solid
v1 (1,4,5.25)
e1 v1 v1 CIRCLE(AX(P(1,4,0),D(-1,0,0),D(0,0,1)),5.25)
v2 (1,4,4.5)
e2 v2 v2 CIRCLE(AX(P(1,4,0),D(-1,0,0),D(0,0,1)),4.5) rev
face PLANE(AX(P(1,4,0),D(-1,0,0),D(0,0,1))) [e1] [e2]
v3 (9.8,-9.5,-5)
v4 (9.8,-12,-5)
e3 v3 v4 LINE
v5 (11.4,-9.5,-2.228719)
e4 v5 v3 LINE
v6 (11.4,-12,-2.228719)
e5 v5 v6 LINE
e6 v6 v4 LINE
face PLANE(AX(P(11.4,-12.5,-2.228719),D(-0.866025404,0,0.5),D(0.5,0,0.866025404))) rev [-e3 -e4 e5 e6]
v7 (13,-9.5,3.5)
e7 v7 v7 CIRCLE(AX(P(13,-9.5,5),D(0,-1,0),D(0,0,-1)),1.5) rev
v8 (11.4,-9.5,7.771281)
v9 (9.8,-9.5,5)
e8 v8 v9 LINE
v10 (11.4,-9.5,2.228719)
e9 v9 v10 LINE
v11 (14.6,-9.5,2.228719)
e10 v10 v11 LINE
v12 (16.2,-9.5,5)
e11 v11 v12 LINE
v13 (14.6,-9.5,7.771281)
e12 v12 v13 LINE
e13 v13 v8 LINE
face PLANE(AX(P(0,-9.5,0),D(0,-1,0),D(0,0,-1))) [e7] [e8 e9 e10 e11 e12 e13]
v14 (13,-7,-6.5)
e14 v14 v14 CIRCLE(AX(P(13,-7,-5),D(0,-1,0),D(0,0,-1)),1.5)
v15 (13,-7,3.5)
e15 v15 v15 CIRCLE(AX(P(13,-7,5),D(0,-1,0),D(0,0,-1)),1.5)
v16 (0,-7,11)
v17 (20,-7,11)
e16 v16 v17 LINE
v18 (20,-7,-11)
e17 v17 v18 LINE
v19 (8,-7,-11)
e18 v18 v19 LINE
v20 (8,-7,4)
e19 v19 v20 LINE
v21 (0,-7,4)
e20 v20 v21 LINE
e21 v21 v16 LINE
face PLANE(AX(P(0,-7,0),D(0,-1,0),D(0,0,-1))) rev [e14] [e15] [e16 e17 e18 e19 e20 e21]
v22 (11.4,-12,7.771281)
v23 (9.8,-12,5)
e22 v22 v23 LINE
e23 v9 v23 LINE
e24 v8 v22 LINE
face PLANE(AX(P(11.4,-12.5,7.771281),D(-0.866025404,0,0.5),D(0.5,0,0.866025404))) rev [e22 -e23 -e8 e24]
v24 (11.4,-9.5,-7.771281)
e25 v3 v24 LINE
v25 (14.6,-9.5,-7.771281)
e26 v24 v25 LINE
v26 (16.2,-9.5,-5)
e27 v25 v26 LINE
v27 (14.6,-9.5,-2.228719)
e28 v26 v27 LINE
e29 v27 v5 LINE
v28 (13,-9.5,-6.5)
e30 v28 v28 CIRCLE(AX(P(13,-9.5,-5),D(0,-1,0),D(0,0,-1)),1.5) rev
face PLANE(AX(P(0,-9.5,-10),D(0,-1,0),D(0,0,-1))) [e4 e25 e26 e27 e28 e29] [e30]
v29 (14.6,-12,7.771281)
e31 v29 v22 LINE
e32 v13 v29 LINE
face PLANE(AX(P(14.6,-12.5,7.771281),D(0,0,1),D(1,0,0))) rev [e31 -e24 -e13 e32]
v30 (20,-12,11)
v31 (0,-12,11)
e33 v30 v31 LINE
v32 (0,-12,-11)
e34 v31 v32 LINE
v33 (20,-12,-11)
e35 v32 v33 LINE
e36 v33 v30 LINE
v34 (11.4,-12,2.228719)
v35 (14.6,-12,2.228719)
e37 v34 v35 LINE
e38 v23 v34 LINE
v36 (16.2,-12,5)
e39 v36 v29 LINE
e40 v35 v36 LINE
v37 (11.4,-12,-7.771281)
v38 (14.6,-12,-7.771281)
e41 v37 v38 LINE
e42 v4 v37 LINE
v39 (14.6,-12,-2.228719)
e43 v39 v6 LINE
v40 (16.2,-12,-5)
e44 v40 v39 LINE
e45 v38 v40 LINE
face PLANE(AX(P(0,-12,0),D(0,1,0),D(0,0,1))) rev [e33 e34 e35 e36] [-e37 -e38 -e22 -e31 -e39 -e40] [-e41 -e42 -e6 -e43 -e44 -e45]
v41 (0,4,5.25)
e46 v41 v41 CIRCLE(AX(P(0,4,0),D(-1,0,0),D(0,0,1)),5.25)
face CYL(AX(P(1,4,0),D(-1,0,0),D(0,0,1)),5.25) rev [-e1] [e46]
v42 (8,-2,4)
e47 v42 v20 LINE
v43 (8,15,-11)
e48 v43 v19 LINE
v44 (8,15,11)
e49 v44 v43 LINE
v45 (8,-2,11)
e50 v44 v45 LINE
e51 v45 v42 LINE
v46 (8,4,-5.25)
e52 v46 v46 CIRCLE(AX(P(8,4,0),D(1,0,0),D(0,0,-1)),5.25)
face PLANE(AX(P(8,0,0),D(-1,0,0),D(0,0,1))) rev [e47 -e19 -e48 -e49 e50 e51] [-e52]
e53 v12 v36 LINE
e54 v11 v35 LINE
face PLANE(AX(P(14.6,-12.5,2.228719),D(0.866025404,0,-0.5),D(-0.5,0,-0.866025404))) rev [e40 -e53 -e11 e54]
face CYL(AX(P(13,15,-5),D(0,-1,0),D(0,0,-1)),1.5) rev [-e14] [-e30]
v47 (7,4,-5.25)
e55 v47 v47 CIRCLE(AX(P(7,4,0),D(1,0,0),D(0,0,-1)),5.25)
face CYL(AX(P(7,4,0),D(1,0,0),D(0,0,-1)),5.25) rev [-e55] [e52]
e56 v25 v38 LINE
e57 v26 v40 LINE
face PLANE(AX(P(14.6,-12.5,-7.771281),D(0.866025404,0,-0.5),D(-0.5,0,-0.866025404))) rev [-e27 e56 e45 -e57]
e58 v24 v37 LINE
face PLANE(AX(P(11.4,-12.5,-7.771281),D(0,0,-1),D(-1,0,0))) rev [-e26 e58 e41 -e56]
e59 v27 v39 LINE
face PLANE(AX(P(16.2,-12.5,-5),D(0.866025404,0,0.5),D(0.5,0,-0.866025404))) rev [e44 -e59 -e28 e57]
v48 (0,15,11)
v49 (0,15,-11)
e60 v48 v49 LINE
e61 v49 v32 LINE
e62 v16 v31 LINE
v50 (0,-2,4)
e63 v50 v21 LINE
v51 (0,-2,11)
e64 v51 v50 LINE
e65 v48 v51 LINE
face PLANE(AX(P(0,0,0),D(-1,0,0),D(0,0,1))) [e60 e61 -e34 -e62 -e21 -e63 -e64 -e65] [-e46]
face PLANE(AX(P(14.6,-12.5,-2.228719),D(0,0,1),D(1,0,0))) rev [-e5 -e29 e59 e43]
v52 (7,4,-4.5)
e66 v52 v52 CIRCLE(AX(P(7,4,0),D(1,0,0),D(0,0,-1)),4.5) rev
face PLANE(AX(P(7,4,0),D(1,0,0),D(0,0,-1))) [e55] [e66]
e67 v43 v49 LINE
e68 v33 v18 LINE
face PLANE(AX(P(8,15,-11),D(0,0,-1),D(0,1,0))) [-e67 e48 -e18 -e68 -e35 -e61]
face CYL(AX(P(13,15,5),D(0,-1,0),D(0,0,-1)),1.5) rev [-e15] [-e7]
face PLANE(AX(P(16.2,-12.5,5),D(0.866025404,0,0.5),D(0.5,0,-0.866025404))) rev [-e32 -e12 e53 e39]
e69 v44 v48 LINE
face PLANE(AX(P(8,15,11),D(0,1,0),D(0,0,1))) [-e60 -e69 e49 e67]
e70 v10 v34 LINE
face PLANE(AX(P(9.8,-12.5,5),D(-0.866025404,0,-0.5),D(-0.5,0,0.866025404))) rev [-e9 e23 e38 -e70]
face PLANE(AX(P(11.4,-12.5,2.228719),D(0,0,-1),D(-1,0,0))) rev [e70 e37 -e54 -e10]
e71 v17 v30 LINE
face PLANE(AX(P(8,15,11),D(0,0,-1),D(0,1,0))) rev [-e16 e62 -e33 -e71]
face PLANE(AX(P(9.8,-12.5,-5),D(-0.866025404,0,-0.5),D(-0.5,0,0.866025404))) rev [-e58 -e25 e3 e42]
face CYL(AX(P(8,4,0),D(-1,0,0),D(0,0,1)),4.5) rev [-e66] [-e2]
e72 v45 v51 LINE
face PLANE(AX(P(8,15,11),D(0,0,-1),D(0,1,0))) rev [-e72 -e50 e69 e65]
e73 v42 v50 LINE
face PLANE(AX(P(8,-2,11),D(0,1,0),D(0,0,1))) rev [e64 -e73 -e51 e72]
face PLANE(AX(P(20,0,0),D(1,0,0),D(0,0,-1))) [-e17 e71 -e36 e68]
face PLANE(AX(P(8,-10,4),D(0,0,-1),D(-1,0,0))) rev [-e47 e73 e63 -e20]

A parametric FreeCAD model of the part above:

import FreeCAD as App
import Part
import Sketcher
Q = App.Units.Quantity


def add_polygon(sketch, points):
    """Adds a closed chain of lines whose ends are joined by coincident constraints."""
    first, n = sketch.GeometryCount, len(points)
    for a, b in zip(points, points[1:] + points[:1]):
        sketch.addGeometry(Part.LineSegment(App.Vector(*a, 0), App.Vector(*b, 0)), False)
    for i in range(n):
        sketch.addConstraint(Sketcher.Constraint("Coincident", first + i, 2, first + (i + 1) % n, 1))

doc = App.newDocument("Part")
params = doc.addObject("Spreadsheet::Sheet", "Params")
for row, (alias, value) in enumerate([
    ("sketch1_width", "30 mm"),
    ("sketch1_height", "22 mm"),
    ("pad1_length", "8 mm"),
    ("sketch2_diameter", "9 mm"),
    ("sketch3_width", "8 mm"),
    ("sketch3_height", "7 mm"),
    ("sketch4_diameter", "10.5 mm"),
    ("pocket3_length", "1 mm"),
    ("sketch5_diameter", "10.5 mm"),
    ("pocket4_length", "1 mm"),
    ("sketch6_width", "5 mm"),
    ("sketch6_height", "22 mm"),
    ("pad2_length", "12 mm"),
    ("sketch7_width", "3.2 mm"),
    ("sketch7_length", "3.2 mm"),
    ("pocket5_length", "2.5 mm"),
    ("linearpattern_pitch", "10 mm"),
    ("sketch8_diameter", "3 mm"),
    ("linearpattern2_pitch", "10 mm"),
    ("sketch9_width", "8 mm"),
    ("sketch9_width2", "20 mm"),
    ("sketch9_height", "7 mm"),
    ("sketch9_height2", "22 mm"),
    ("pad3_length", "3 mm"),
    ("sketch10_diameter", "3 mm"),
    ("sketch11_diameter", "3 mm"),
    ("sketch12_width", "3.2 mm"),
    ("sketch12_length", "3.2 mm"),
    ("pocket9_length", "3 mm"),
    ("linearpattern3_pitch", "10 mm"),
    ("sketch13_width", "20 mm"),
    ("sketch13_height", "22 mm"),
    ("pocket10_length", "3 mm"),
], start=1):
    params.set(f"A{row}", alias)
    params.set(f"B{row}", "=" + value)
    params.setAlias(f"B{row}", alias)

body = doc.addObject("PartDesign::Body", "Body")

sketch1 = doc.addObject("Sketcher::SketchObject", "Sketch")
body.addObject(sketch1)
sketch1.AttachmentSupport = (doc.YZ_Plane, [""])
sketch1.MapMode = "FlatFace"
add_polygon(sketch1, [(15, 11), (-15, 11), (-15, -11), (15, -11)])
sketch1.addConstraint(Sketcher.Constraint("Horizontal", 0))
sketch1.addConstraint(Sketcher.Constraint("Vertical", 1))
sketch1.addConstraint(Sketcher.Constraint("Horizontal", 2))
sketch1.addConstraint(Sketcher.Constraint("Vertical", 3))
sketch1.addConstraint(Sketcher.Constraint("Symmetric", 0, 2, 2, 2, -1, 1))
sketch1.addConstraint(Sketcher.Constraint("DistanceX", 0, 2, 0, 1, Q("30 mm")))
sketch1.addConstraint(Sketcher.Constraint("DistanceY", 1, 2, 1, 1, Q("22 mm")))
sketch1.setExpression("Constraints[9]", "Params.sketch1_width")
sketch1.setExpression("Constraints[10]", "Params.sketch1_height")
pad1 = doc.addObject("PartDesign::Pad", "Pad")
body.addObject(pad1)
pad1.Profile = sketch1
pad1.setExpression("Length", "Params.pad1_length")

sketch2 = doc.addObject("Sketcher::SketchObject", "Sketch001")
body.addObject(sketch2)
sketch2.AttachmentSupport = (doc.YZ_Plane, [""])
sketch2.MapMode = "FlatFace"
sketch2.addGeometry(Part.Circle(App.Vector(4, 0, 0), App.Vector(0, 0, 1), 4.5), False)
sketch2.addConstraint(Sketcher.Constraint("PointOnObject", 0, 3, -1))
sketch2.addConstraint(Sketcher.Constraint("Diameter", 0, Q("9 mm")))
sketch2.addConstraint(Sketcher.Constraint("DistanceX", -1, 1, 0, 3, Q("4 mm")))
sketch2.setExpression("Constraints[1]", "Params.sketch2_diameter")
pocket1 = doc.addObject("PartDesign::Pocket", "Pocket")
body.addObject(pocket1)
pocket1.Profile = sketch2
pocket1.Type = "ThroughAll"
pocket1.Reversed = True

sketch3 = doc.addObject("Sketcher::SketchObject", "Sketch002")
body.addObject(sketch3)
sketch3.AttachmentSupport = (doc.YZ_Plane, [""])
sketch3.MapMode = "FlatFace"
add_polygon(sketch3, [(-2, 4), (-10, 4), (-10, 11), (-2, 11)])
sketch3.addConstraint(Sketcher.Constraint("Horizontal", 0))
sketch3.addConstraint(Sketcher.Constraint("Vertical", 1))
sketch3.addConstraint(Sketcher.Constraint("Horizontal", 2))
sketch3.addConstraint(Sketcher.Constraint("Vertical", 3))
sketch3.addConstraint(Sketcher.Constraint("DistanceX", 0, 2, 0, 1, Q("8 mm")))
sketch3.addConstraint(Sketcher.Constraint("DistanceY", 1, 1, 1, 2, Q("7 mm")))
sketch3.addConstraint(Sketcher.Constraint("DistanceX", 0, 2, -1, 1, Q("10 mm")))
sketch3.addConstraint(Sketcher.Constraint("DistanceY", -1, 1, 0, 2, Q("4 mm")))
sketch3.setExpression("Constraints[8]", "Params.sketch3_width")
sketch3.setExpression("Constraints[9]", "Params.sketch3_height")
pocket2 = doc.addObject("PartDesign::Pocket", "Pocket001")
body.addObject(pocket2)
pocket2.Profile = sketch3
pocket2.Type = "ThroughAll"
pocket2.Reversed = True

sketch4 = doc.addObject("Sketcher::SketchObject", "Sketch003")
body.addObject(sketch4)
sketch4.AttachmentSupport = (doc.YZ_Plane, [""])
sketch4.MapMode = "FlatFace"
sketch4.addGeometry(Part.Circle(App.Vector(4, 0, 0), App.Vector(0, 0, 1), 5.25), False)
sketch4.addConstraint(Sketcher.Constraint("PointOnObject", 0, 3, -1))
sketch4.addConstraint(Sketcher.Constraint("Diameter", 0, Q("10.5 mm")))
sketch4.addConstraint(Sketcher.Constraint("DistanceX", -1, 1, 0, 3, Q("4 mm")))
sketch4.setExpression("Constraints[1]", "Params.sketch4_diameter")
pocket3 = doc.addObject("PartDesign::Pocket", "Pocket002")
body.addObject(pocket3)
pocket3.Profile = sketch4
pocket3.setExpression("Length", "Params.pocket3_length")
pocket3.Reversed = True

sketch5 = doc.addObject("Sketcher::SketchObject", "Sketch004")
body.addObject(sketch5)
sketch5.AttachmentSupport = (doc.YZ_Plane, [""])
sketch5.MapMode = "FlatFace"
sketch5.AttachmentOffset = App.Placement(App.Vector(0, 0, 8), App.Rotation())
sketch5.addGeometry(Part.Circle(App.Vector(4, 0, 0), App.Vector(0, 0, 1), 5.25), False)
sketch5.addConstraint(Sketcher.Constraint("PointOnObject", 0, 3, -1))
sketch5.addConstraint(Sketcher.Constraint("Diameter", 0, Q("10.5 mm")))
sketch5.addConstraint(Sketcher.Constraint("DistanceX", -1, 1, 0, 3, Q("4 mm")))
sketch5.setExpression("Constraints[1]", "Params.sketch5_diameter")
pocket4 = doc.addObject("PartDesign::Pocket", "Pocket003")
body.addObject(pocket4)
pocket4.Profile = sketch5
pocket4.setExpression("Length", "Params.pocket4_length")

sketch6 = doc.addObject("Sketcher::SketchObject", "Sketch005")
body.addObject(sketch6)
sketch6.AttachmentSupport = (doc.YZ_Plane, [""])
sketch6.MapMode = "FlatFace"
sketch6.AttachmentOffset = App.Placement(App.Vector(0, 0, 8), App.Rotation())
add_polygon(sketch6, [(-10, 11), (-15, 11), (-15, -11), (-10, -11)])
sketch6.addConstraint(Sketcher.Constraint("Horizontal", 0))
sketch6.addConstraint(Sketcher.Constraint("Vertical", 1))
sketch6.addConstraint(Sketcher.Constraint("Horizontal", 2))
sketch6.addConstraint(Sketcher.Constraint("Vertical", 3))
sketch6.addConstraint(Sketcher.Constraint("DistanceX", 0, 2, 0, 1, Q("5 mm")))
sketch6.addConstraint(Sketcher.Constraint("DistanceY", 1, 2, 1, 1, Q("22 mm")))
sketch6.addConstraint(Sketcher.Constraint("DistanceX", 0, 2, -1, 1, Q("15 mm")))
sketch6.addConstraint(Sketcher.Constraint("DistanceY", -1, 1, 0, 2, Q("11 mm")))
sketch6.setExpression("Constraints[8]", "Params.sketch6_width")
sketch6.setExpression("Constraints[9]", "Params.sketch6_height")
pad2 = doc.addObject("PartDesign::Pad", "Pad001")
body.addObject(pad2)
pad2.Profile = sketch6
pad2.setExpression("Length", "Params.pad2_length")

sketch7 = doc.addObject("Sketcher::SketchObject", "Sketch006")
body.addObject(sketch7)
sketch7.AttachmentSupport = (doc.XZ_Plane, [""])
sketch7.MapMode = "FlatFace"
sketch7.AttachmentOffset = App.Placement(App.Vector(0, 0, 15), App.Rotation())
add_polygon(sketch7, [(9.8, -5), (11.4, -7.771281), (14.6, -7.771281), (16.2, -5), (14.6, -2.228719), (11.4, -2.228719)])
sketch7.addConstraint(Sketcher.Constraint("Horizontal", 1))
sketch7.addConstraint(Sketcher.Constraint("Horizontal", 4))
sketch7.addConstraint(Sketcher.Constraint("Parallel", 0, 3))
sketch7.addConstraint(Sketcher.Constraint("Parallel", 2, 5))
sketch7.addConstraint(Sketcher.Constraint("Horizontal", 2, 2, 5, 2))
sketch7.addConstraint(Sketcher.Constraint("Vertical", 1, 2, 3, 2))
sketch7.addConstraint(Sketcher.Constraint("Vertical", 0, 2, 4, 2))
sketch7.addConstraint(Sketcher.Constraint("Angle", 0, Q("-60 deg")))
sketch7.addConstraint(Sketcher.Constraint("DistanceX", 1, 1, 1, 2, Q("3.2 mm")))
sketch7.addConstraint(Sketcher.Constraint("DistanceY", 2, 2, -1, 1, Q("5 mm")))
sketch7.addConstraint(Sketcher.Constraint("Distance", 0, Q("3.2 mm")))
sketch7.addConstraint(Sketcher.Constraint("DistanceX", -1, 1, 0, 2, Q("11.4 mm")))
sketch7.setExpression("Constraints[14]", "Params.sketch7_width")
sketch7.setExpression("Constraints[16]", "Params.sketch7_length")
pocket5 = doc.addObject("PartDesign::Pocket", "Pocket004")
body.addObject(pocket5)
pocket5.Profile = sketch7
pocket5.setExpression("Length", "Params.pocket5_length")
doc.recompute()

linearpattern = doc.addObject("PartDesign::LinearPattern", "LinearPattern")
body.addObject(linearpattern)
linearpattern.Originals = [pocket5]
linearpattern.Direction = (doc.Z_Axis, [""])
linearpattern.Mode = "offset"
linearpattern.setExpression("Offset", "Params.linearpattern_pitch")
linearpattern.Occurrences = 2
body.Tip = linearpattern

sketch8 = doc.addObject("Sketcher::SketchObject", "Sketch007")
body.addObject(sketch8)
sketch8.AttachmentSupport = (doc.XZ_Plane, [""])
sketch8.MapMode = "FlatFace"
sketch8.AttachmentOffset = App.Placement(App.Vector(0, 0, 12.5), App.Rotation())
sketch8.addGeometry(Part.Circle(App.Vector(13, 5, 0), App.Vector(0, 0, 1), 1.5), False)
sketch8.addConstraint(Sketcher.Constraint("Diameter", 0, Q("3 mm")))
sketch8.addConstraint(Sketcher.Constraint("DistanceX", -1, 1, 0, 3, Q("13 mm")))
sketch8.addConstraint(Sketcher.Constraint("DistanceY", -1, 1, 0, 3, Q("5 mm")))
sketch8.setExpression("Constraints[0]", "Params.sketch8_diameter")
pocket6 = doc.addObject("PartDesign::Pocket", "Pocket005")
body.addObject(pocket6)
pocket6.Profile = sketch8
pocket6.Type = "ThroughAll"
doc.recompute()

linearpattern2 = doc.addObject("PartDesign::LinearPattern", "LinearPattern001")
body.addObject(linearpattern2)
linearpattern2.Originals = [pocket6]
linearpattern2.Direction = (doc.Z_Axis, [""])
linearpattern2.Mode = "offset"
linearpattern2.setExpression("Offset", "Params.linearpattern2_pitch")
linearpattern2.Occurrences = 2
linearpattern2.Reversed = True
body.Tip = linearpattern2

sketch9 = doc.addObject("Sketcher::SketchObject", "Sketch008")
body.addObject(sketch9)
sketch9.AttachmentSupport = (doc.XZ_Plane, [""])
sketch9.MapMode = "FlatFace"
sketch9.AttachmentOffset = App.Placement(App.Vector(0, 0, 10), App.Rotation())
add_polygon(sketch9, [(8, 4), (0, 4), (0, 11), (20, 11), (20, -11), (8, -11)])
sketch9.addConstraint(Sketcher.Constraint("Horizontal", 0))
sketch9.addConstraint(Sketcher.Constraint("Vertical", 1))
sketch9.addConstraint(Sketcher.Constraint("Horizontal", 2))
sketch9.addConstraint(Sketcher.Constraint("Vertical", 3))
sketch9.addConstraint(Sketcher.Constraint("Horizontal", 4))
sketch9.addConstraint(Sketcher.Constraint("Vertical", 5))
sketch9.addConstraint(Sketcher.Constraint("PointOnObject", 0, 2, -2))
sketch9.addConstraint(Sketcher.Constraint("DistanceX", 0, 2, 0, 1, Q("8 mm")))
sketch9.addConstraint(Sketcher.Constraint("DistanceX", 2, 1, 2, 2, Q("20 mm")))
sketch9.addConstraint(Sketcher.Constraint("DistanceY", 1, 1, 1, 2, Q("7 mm")))
sketch9.addConstraint(Sketcher.Constraint("DistanceY", 3, 2, 3, 1, Q("22 mm")))
sketch9.addConstraint(Sketcher.Constraint("DistanceY", -1, 1, 0, 2, Q("4 mm")))
sketch9.setExpression("Constraints[13]", "Params.sketch9_width")
sketch9.setExpression("Constraints[14]", "Params.sketch9_width2")
sketch9.setExpression("Constraints[15]", "Params.sketch9_height")
sketch9.setExpression("Constraints[16]", "Params.sketch9_height2")
pad3 = doc.addObject("PartDesign::Pad", "Pad002")
body.addObject(pad3)
pad3.Profile = sketch9
pad3.setExpression("Length", "Params.pad3_length")
pad3.Reversed = True

sketch10 = doc.addObject("Sketcher::SketchObject", "Sketch009")
body.addObject(sketch10)
sketch10.AttachmentSupport = (doc.XZ_Plane, [""])
sketch10.MapMode = "FlatFace"
sketch10.AttachmentOffset = App.Placement(App.Vector(0, 0, 10), App.Rotation())
sketch10.addGeometry(Part.Circle(App.Vector(13, 5, 0), App.Vector(0, 0, 1), 1.5), False)
sketch10.addConstraint(Sketcher.Constraint("Diameter", 0, Q("3 mm")))
sketch10.addConstraint(Sketcher.Constraint("DistanceX", -1, 1, 0, 3, Q("13 mm")))
sketch10.addConstraint(Sketcher.Constraint("DistanceY", -1, 1, 0, 3, Q("5 mm")))
sketch10.setExpression("Constraints[0]", "Params.sketch10_diameter")
pocket7 = doc.addObject("PartDesign::Pocket", "Pocket006")
body.addObject(pocket7)
pocket7.Profile = sketch10
pocket7.Type = "ThroughAll"

sketch11 = doc.addObject("Sketcher::SketchObject", "Sketch010")
body.addObject(sketch11)
sketch11.AttachmentSupport = (doc.XZ_Plane, [""])
sketch11.MapMode = "FlatFace"
sketch11.AttachmentOffset = App.Placement(App.Vector(0, 0, 10), App.Rotation())
sketch11.addGeometry(Part.Circle(App.Vector(13, -5, 0), App.Vector(0, 0, 1), 1.5), False)
sketch11.addConstraint(Sketcher.Constraint("Diameter", 0, Q("3 mm")))
sketch11.addConstraint(Sketcher.Constraint("DistanceX", -1, 1, 0, 3, Q("13 mm")))
sketch11.addConstraint(Sketcher.Constraint("DistanceY", 0, 3, -1, 1, Q("5 mm")))
sketch11.setExpression("Constraints[0]", "Params.sketch11_diameter")
pocket8 = doc.addObject("PartDesign::Pocket", "Pocket007")
body.addObject(pocket8)
pocket8.Profile = sketch11
pocket8.Type = "ThroughAll"

sketch12 = doc.addObject("Sketcher::SketchObject", "Sketch011")
body.addObject(sketch12)
sketch12.AttachmentSupport = (doc.XZ_Plane, [""])
sketch12.MapMode = "FlatFace"
sketch12.AttachmentOffset = App.Placement(App.Vector(0, 0, 12.5), App.Rotation())
add_polygon(sketch12, [(16.2, 5), (14.6, 7.771281), (11.4, 7.771281), (9.8, 5), (11.4, 2.228719), (14.6, 2.228719)])
sketch12.addConstraint(Sketcher.Constraint("Horizontal", 1))
sketch12.addConstraint(Sketcher.Constraint("Horizontal", 4))
sketch12.addConstraint(Sketcher.Constraint("Parallel", 0, 3))
sketch12.addConstraint(Sketcher.Constraint("Parallel", 2, 5))
sketch12.addConstraint(Sketcher.Constraint("Horizontal", 2, 2, 5, 2))
sketch12.addConstraint(Sketcher.Constraint("Vertical", 1, 2, 3, 2))
sketch12.addConstraint(Sketcher.Constraint("Vertical", 0, 2, 4, 2))
sketch12.addConstraint(Sketcher.Constraint("Angle", 0, Q("120 deg")))
sketch12.addConstraint(Sketcher.Constraint("DistanceX", 1, 2, 1, 1, Q("3.2 mm")))
sketch12.addConstraint(Sketcher.Constraint("DistanceY", -1, 1, 2, 2, Q("5 mm")))
sketch12.addConstraint(Sketcher.Constraint("Distance", 0, Q("3.2 mm")))
sketch12.addConstraint(Sketcher.Constraint("DistanceX", -1, 1, 0, 2, Q("14.6 mm")))
sketch12.setExpression("Constraints[14]", "Params.sketch12_width")
sketch12.setExpression("Constraints[16]", "Params.sketch12_length")
pocket9 = doc.addObject("PartDesign::Pocket", "Pocket008")
body.addObject(pocket9)
pocket9.Profile = sketch12
pocket9.setExpression("Length", "Params.pocket9_length")
doc.recompute()

linearpattern3 = doc.addObject("PartDesign::LinearPattern", "LinearPattern002")
body.addObject(linearpattern3)
linearpattern3.Originals = [pocket9]
linearpattern3.Direction = (doc.Z_Axis, [""])
linearpattern3.Mode = "offset"
linearpattern3.setExpression("Offset", "Params.linearpattern3_pitch")
linearpattern3.Occurrences = 2
linearpattern3.Reversed = True
body.Tip = linearpattern3

sketch13 = doc.addObject("Sketcher::SketchObject", "Sketch012")
body.addObject(sketch13)
sketch13.AttachmentSupport = (doc.XZ_Plane, [""])
sketch13.MapMode = "FlatFace"
sketch13.AttachmentOffset = App.Placement(App.Vector(0, 0, 15), App.Rotation())
add_polygon(sketch13, [(0, 11), (0, -11), (20, -11), (20, 11)])
sketch13.addConstraint(Sketcher.Constraint("Vertical", 0))
sketch13.addConstraint(Sketcher.Constraint("Horizontal", 1))
sketch13.addConstraint(Sketcher.Constraint("Vertical", 2))
sketch13.addConstraint(Sketcher.Constraint("Horizontal", 3))
sketch13.addConstraint(Sketcher.Constraint("Symmetric", 0, 2, 3, 2, -1, 1))
sketch13.addConstraint(Sketcher.Constraint("DistanceX", 1, 1, 1, 2, Q("20 mm")))
sketch13.addConstraint(Sketcher.Constraint("DistanceY", 0, 2, 0, 1, Q("22 mm")))
sketch13.setExpression("Constraints[9]", "Params.sketch13_width")
sketch13.setExpression("Constraints[10]", "Params.sketch13_height")
pocket10 = doc.addObject("PartDesign::Pocket", "Pocket009")
body.addObject(pocket10)
pocket10.Profile = sketch13
pocket10.setExpression("Length", "Params.pocket10_length")

doc.recompute()
